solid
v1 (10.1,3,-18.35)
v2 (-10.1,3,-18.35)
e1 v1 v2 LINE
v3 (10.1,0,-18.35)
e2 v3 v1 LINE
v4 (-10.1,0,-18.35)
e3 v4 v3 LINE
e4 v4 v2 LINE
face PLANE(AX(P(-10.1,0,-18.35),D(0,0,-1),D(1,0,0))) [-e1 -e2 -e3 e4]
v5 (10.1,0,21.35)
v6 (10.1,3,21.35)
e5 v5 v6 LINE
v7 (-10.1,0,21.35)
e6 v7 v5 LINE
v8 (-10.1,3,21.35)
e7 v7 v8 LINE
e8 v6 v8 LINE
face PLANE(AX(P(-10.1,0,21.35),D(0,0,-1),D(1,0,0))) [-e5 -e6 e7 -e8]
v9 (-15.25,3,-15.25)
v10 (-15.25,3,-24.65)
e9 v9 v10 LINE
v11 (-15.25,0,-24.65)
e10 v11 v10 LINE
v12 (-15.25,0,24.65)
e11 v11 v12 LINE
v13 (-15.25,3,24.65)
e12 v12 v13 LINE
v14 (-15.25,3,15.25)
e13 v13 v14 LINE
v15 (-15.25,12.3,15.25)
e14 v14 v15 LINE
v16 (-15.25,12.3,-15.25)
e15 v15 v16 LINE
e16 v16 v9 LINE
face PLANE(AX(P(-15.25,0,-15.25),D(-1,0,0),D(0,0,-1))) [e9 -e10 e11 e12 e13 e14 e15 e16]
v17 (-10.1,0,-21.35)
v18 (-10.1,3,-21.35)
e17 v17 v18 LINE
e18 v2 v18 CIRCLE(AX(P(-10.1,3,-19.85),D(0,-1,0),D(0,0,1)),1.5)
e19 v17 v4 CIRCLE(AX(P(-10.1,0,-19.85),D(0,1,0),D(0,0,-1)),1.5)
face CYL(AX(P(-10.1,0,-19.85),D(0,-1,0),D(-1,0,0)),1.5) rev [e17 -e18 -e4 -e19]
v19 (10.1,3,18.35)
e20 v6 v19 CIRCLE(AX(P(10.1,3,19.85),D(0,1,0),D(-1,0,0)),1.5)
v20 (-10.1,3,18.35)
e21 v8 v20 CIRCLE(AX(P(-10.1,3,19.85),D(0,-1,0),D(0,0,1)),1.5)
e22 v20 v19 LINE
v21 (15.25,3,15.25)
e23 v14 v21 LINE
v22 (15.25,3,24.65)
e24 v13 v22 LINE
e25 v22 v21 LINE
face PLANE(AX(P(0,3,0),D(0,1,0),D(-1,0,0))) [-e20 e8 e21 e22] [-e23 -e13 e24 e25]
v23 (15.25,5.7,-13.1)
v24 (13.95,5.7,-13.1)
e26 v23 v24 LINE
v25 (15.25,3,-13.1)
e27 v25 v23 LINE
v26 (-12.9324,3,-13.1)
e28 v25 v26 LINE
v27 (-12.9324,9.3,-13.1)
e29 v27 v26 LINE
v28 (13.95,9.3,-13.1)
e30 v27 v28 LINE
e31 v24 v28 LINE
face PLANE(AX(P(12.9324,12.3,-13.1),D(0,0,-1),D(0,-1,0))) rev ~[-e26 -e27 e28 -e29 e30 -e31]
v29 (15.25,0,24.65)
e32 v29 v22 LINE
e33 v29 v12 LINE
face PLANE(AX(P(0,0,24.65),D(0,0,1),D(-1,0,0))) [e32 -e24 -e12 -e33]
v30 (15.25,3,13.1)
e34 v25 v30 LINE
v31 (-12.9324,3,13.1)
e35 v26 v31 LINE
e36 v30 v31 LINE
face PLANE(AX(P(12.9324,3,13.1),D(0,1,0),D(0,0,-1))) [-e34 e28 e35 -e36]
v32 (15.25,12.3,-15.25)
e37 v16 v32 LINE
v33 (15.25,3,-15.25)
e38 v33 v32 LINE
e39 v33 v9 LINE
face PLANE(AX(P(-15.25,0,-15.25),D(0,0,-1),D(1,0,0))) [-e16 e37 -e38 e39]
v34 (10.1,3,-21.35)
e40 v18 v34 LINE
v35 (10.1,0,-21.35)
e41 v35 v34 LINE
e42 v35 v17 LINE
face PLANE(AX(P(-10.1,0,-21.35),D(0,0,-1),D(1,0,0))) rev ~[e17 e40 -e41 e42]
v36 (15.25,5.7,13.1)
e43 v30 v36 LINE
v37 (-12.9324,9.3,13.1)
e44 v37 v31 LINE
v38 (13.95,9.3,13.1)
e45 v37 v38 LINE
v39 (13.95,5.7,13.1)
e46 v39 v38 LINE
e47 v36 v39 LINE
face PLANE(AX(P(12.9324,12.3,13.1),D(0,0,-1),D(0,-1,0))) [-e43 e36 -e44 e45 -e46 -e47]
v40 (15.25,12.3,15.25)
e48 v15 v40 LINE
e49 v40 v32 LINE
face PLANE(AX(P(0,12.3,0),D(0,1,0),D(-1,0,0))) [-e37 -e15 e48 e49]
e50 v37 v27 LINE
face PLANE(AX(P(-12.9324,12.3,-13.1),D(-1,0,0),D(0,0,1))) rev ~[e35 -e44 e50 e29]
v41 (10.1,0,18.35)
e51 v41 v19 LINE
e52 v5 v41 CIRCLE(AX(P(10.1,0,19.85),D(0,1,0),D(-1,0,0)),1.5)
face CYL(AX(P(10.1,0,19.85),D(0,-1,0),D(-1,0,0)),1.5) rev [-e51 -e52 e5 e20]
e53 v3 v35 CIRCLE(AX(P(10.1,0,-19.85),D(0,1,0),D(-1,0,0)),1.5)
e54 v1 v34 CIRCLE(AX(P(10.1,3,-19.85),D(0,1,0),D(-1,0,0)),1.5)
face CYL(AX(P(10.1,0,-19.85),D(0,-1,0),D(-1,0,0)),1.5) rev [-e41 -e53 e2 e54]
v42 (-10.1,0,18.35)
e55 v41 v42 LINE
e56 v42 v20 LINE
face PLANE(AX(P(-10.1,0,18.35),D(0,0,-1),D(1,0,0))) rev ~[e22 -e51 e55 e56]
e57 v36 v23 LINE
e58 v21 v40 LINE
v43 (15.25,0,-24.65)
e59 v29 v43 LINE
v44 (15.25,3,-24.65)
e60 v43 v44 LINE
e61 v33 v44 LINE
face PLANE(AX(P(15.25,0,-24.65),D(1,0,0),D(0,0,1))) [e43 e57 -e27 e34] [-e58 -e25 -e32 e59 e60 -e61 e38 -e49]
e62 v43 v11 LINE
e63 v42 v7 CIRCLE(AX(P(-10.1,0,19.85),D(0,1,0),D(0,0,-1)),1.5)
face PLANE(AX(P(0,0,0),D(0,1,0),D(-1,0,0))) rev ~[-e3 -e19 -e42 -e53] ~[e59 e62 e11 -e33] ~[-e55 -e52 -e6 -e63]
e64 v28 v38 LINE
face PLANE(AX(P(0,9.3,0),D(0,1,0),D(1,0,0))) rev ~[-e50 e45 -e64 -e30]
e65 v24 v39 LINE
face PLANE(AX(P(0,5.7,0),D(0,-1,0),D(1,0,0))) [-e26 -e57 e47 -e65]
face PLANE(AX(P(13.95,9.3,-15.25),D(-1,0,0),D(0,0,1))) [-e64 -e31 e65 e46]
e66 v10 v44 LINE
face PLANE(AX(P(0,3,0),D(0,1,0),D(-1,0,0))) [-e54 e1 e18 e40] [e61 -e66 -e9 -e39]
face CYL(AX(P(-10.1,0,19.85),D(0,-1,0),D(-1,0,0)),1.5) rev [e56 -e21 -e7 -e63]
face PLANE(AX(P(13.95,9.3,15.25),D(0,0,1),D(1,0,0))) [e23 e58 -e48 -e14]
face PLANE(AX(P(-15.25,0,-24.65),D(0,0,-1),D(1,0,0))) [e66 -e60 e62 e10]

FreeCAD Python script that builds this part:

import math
import FreeCAD as App
import Part
import Sketcher

V = App.Vector
Q = App.Units.Quantity

doc = App.newDocument("Part")
params = doc.addObject("Spreadsheet::Sheet", "Params")
for row, (alias, value) in enumerate([
    ("sketch1_radius", "1.5 mm"),
    ("sketch1_width", "30.5 mm"),
    ("sketch1_height", "49.3 mm"),
    ("sketch1_width2", "20.2 mm"),
    ("pad1_length", "3 mm"),
    ("sketch2_width", "30.5 mm"),
    ("pad2_length", "12.3 mm"),
    ("sketch3_height", "26.2 mm"),
    ("pocket1_length", "9.3 mm"),
    ("sketch4_width", "9.3 mm"),
    ("sketch4_height", "26.2 mm"),
    ("sketch5_width", "30.5 mm"),
    ("pad3_length", "3 mm"),
    ("sketch6_width", "1.3 mm"),
    ("sketch6_height", "30.5 mm"),
    ("pad4_length", "3.6 mm"),
], start=1):
    params.set(f"A{row}", alias)
    params.set(f"B{row}", "=" + value)
    params.setAlias(f"B{row}", alias)

body = doc.addObject("PartDesign::Body", "Body")

# Sketch on XZ plane
sketch1 = doc.addObject("Sketcher::SketchObject", "Sketch")
body.addObject(sketch1)
sketch1.AttachmentSupport = (doc.XZ_Plane, [""])
sketch1.MapMode = "FlatFace"
sketch1.addGeometry([
    Part.LineSegment(V(-15.2, -24.6, 0), V(-15.2, 24.6, 0)),  # 0
    Part.LineSegment(V(-15.2, 24.6, 0), V(15.2, 24.6, 0)),  # 1
    Part.LineSegment(V(15.2, 24.6, 0), V(15.2, -24.6, 0)),  # 2
    Part.LineSegment(V(15.2, -24.6, 0), V(-15.2, -24.6, 0)),  # 3
    Part.LineSegment(V(-10.1, -21.4, 0), V(10.1, -21.4, 0)),  # 4
    Part.ArcOfCircle(Part.Circle(V(10.1, -19.9, 0), V(0, 0, 1), 1.5), math.radians(-90), math.radians(90)),  # 5
    Part.LineSegment(V(10.1, -18.4, 0), V(-10.1, -18.4, 0)),  # 6
    Part.ArcOfCircle(Part.Circle(V(-10.1, -19.9, 0), V(0, 0, 1), 1.5), math.radians(90), math.radians(270)),  # 7
    Part.LineSegment(V(-10.1, 18.4, 0), V(10.1, 18.4, 0)),  # 8
    Part.ArcOfCircle(Part.Circle(V(10.1, 19.9, 0), V(0, 0, 1), 1.5), math.radians(-90), math.radians(90)),  # 9
    Part.LineSegment(V(10.1, 21.4, 0), V(-10.1, 21.4, 0)),  # 10
    Part.ArcOfCircle(Part.Circle(V(-10.1, 19.9, 0), V(0, 0, 1), 1.5), math.radians(90), math.radians(270)),  # 11
], False)
sketch1.addConstraint([
    Sketcher.Constraint("Coincident", 0, 2, 1, 1),
    Sketcher.Constraint("Coincident", 1, 2, 2, 1),
    Sketcher.Constraint("Coincident", 2, 2, 3, 1),
    Sketcher.Constraint("Coincident", 3, 2, 0, 1),
    Sketcher.Constraint("Tangent", 4, 2, 5, 1),
    Sketcher.Constraint("Tangent", 5, 2, 6, 1),
    Sketcher.Constraint("Tangent", 6, 2, 7, 1),
    Sketcher.Constraint("Tangent", 7, 2, 4, 1),
    Sketcher.Constraint("Tangent", 8, 2, 9, 1),
    Sketcher.Constraint("Tangent", 9, 2, 10, 1),
    Sketcher.Constraint("Tangent", 10, 2, 11, 1),
    Sketcher.Constraint("Tangent", 11, 2, 8, 1),
    Sketcher.Constraint("Vertical", 0),
    Sketcher.Constraint("Horizontal", 1),
    Sketcher.Constraint("Vertical", 2),
    Sketcher.Constraint("Horizontal", 3),
    Sketcher.Constraint("Horizontal", 4),
    Sketcher.Constraint("Horizontal", 6),
    Sketcher.Constraint("Horizontal", 8),
    Sketcher.Constraint("Horizontal", 10),
    Sketcher.Constraint("Equal", 7, 9),
    Sketcher.Constraint("Symmetric", 7, 3, 9, 3, -1, 1),
    Sketcher.Constraint("Symmetric", 0, 2, 2, 2, -1, 1),
    Sketcher.Constraint("Vertical", 5, 3, 9, 3),
    Sketcher.Constraint("Vertical", 7, 3, 11, 3),
    Sketcher.Constraint("Radius", 5, Q("1.5 mm")),
    Sketcher.Constraint("DistanceX", 1, 1, 1, 2, Q("30.5 mm")),
    Sketcher.Constraint("DistanceY", 0, 1, 0, 2, Q("49.3 mm")),
    Sketcher.Constraint("DistanceY", 2, 2, 4, 2, Q("3.3 mm")),
    Sketcher.Constraint("DistanceX", 4, 1, 4, 2, Q("20.2 mm")),
])
sketch1.setExpression("Constraints[25]", "Params.sketch1_radius")
sketch1.setExpression("Constraints[26]", "Params.sketch1_width")
sketch1.setExpression("Constraints[27]", "Params.sketch1_height")
sketch1.setExpression("Constraints[29]", "Params.sketch1_width2")
pad1 = doc.addObject("PartDesign::Pad", "Pad")
body.addObject(pad1)
pad1.Profile = sketch1
pad1.setExpression("Length", "Params.pad1_length")
pad1.Reversed = True

# Sketch on XZ plane
sketch2 = doc.addObject("Sketcher::SketchObject", "Sketch001")
body.addObject(sketch2)
sketch2.AttachmentSupport = (doc.XZ_Plane, [""])
sketch2.MapMode = "FlatFace"
sketch2.addGeometry([
    Part.LineSegment(V(-15, -15, 0), V(-15, 15, 0)),
    Part.LineSegment(V(-15, 15, 0), V(15, 15, 0)),
    Part.LineSegment(V(15, 15, 0), V(15, -15, 0)),
    Part.LineSegment(V(15, -15, 0), V(-15, -15, 0)),
], False)
sketch2.addConstraint([
    Sketcher.Constraint("Coincident", 0, 2, 1, 1),
    Sketcher.Constraint("Coincident", 1, 2, 2, 1),
    Sketcher.Constraint("Coincident", 2, 2, 3, 1),
    Sketcher.Constraint("Coincident", 3, 2, 0, 1),
    Sketcher.Constraint("Vertical", 0),
    Sketcher.Constraint("Horizontal", 1),
    Sketcher.Constraint("Vertical", 2),
    Sketcher.Constraint("Horizontal", 3),
    Sketcher.Constraint("Symmetric", 0, 2, 2, 2, -1, 1),
    Sketcher.Constraint("Equal", 3, 0),
    Sketcher.Constraint("DistanceX", 1, 1, 1, 2, Q("30.5 mm")),
])
sketch2.setExpression("Constraints[10]", "Params.sketch2_width")
pad2 = doc.addObject("PartDesign::Pad", "Pad001")
body.addObject(pad2)
pad2.Profile = sketch2
pad2.setExpression("Length", "Params.pad2_length")
pad2.Reversed = True

# Sketch on XZ plane
sketch3 = doc.addObject("Sketcher::SketchObject", "Sketch002")
body.addObject(sketch3)
sketch3.AttachmentSupport = (doc.XZ_Plane, [""])
sketch3.MapMode = "FlatFace"
sketch3.AttachmentOffset = App.Placement(V(0, 0, -12.3), App.Rotation())
sketch3.addGeometry([
    Part.LineSegment(V(13, 13, 0), V(13, -13, 0)),
    Part.LineSegment(V(13, -13, 0), V(-13, -13, 0)),
    Part.LineSegment(V(-13, -13, 0), V(-13, 13, 0)),
    Part.LineSegment(V(-13, 13, 0), V(13, 13, 0)),
], False)
sketch3.addConstraint([
    Sketcher.Constraint("Coincident", 0, 2, 1, 1),
    Sketcher.Constraint("Coincident", 1, 2, 2, 1),
    Sketcher.Constraint("Coincident", 2, 2, 3, 1),
    Sketcher.Constraint("Coincident", 3, 2, 0, 1),
    Sketcher.Constraint("Vertical", 0),
    Sketcher.Constraint("Horizontal", 1),
    Sketcher.Constraint("Vertical", 2),
    Sketcher.Constraint("Horizontal", 3),
    Sketcher.Constraint("Symmetric", 0, 2, 2, 2, -1, 1),
    Sketcher.Constraint("DistanceY", 0, 2, 0, 1, Q("26.2 mm")),
    Sketcher.Constraint("DistanceX", 1, 2, 1, 1, Q("25.8648 mm")),
])
sketch3.setExpression("Constraints[9]", "Params.sketch3_height")
pocket1 = doc.addObject("PartDesign::Pocket", "Pocket")
body.addObject(pocket1)
pocket1.Profile = sketch3
pocket1.setExpression("Length", "Params.pocket1_length")
pocket1.Reversed = True

# Sketch on YZ plane
sketch4 = doc.addObject("Sketcher::SketchObject", "Sketch003")
body.addObject(sketch4)
sketch4.AttachmentSupport = (doc.YZ_Plane, [""])
sketch4.MapMode = "FlatFace"
sketch4.AttachmentOffset = App.Placement(V(0, 0, 12.9324), App.Rotation())
sketch4.addGeometry([
    Part.LineSegment(V(3, 13, 0), V(12, 13, 0)),
    Part.LineSegment(V(12, 13, 0), V(12, -13, 0)),
    Part.LineSegment(V(12, -13, 0), V(3, -13, 0)),
    Part.LineSegment(V(3, -13, 0), V(3, 13, 0)),
], False)
sketch4.addConstraint([
    Sketcher.Constraint("Coincident", 0, 2, 1, 1),
    Sketcher.Constraint("Coincident", 1, 2, 2, 1),
    Sketcher.Constraint("Coincident", 2, 2, 3, 1),
    Sketcher.Constraint("Coincident", 3, 2, 0, 1),
    Sketcher.Constraint("Horizontal", 0),
    Sketcher.Constraint("Vertical", 1),
    Sketcher.Constraint("Horizontal", 2),
    Sketcher.Constraint("Vertical", 3),
    Sketcher.Constraint("DistanceX", 0, 1, 0, 2, Q("9.3 mm")),
    Sketcher.Constraint("DistanceY", 1, 2, 1, 1, Q("26.2 mm")),
    Sketcher.Constraint("DistanceX", -1, 1, 2, 2, Q("3 mm")),
    Sketcher.Constraint("DistanceY", -1, 1, 0, 2, Q("13.1 mm")),
])
sketch4.setExpression("Constraints[8]", "Params.sketch4_width")
sketch4.setExpression("Constraints[9]", "Params.sketch4_height")
pocket2 = doc.addObject("PartDesign::Pocket", "Pocket001")
body.addObject(pocket2)
pocket2.Profile = sketch4
pocket2.Type = "ThroughAll"
pocket2.Reversed = True

# Sketch on XZ plane
sketch5 = doc.addObject("Sketcher::SketchObject", "Sketch004")
body.addObject(sketch5)
sketch5.AttachmentSupport = (doc.XZ_Plane, [""])
sketch5.MapMode = "FlatFace"
sketch5.AttachmentOffset = App.Placement(V(0, 0, -12.3), App.Rotation())
sketch5.addGeometry([
    Part.LineSegment(V(15, -15, 0), V(-15, -15, 0)),
    Part.LineSegment(V(-15, -15, 0), V(-15, 15, 0)),
    Part.LineSegment(V(-15, 15, 0), V(15, 15, 0)),
    Part.LineSegment(V(15, 15, 0), V(15, -15, 0)),
], False)
sketch5.addConstraint([
    Sketcher.Constraint("Coincident", 0, 2, 1, 1),
    Sketcher.Constraint("Coincident", 1, 2, 2, 1),
    Sketcher.Constraint("Coincident", 2, 2, 3, 1),
    Sketcher.Constraint("Coincident", 3, 2, 0, 1),
    Sketcher.Constraint("Horizontal", 0),
    Sketcher.Constraint("Vertical", 1),
    Sketcher.Constraint("Horizontal", 2),
    Sketcher.Constraint("Vertical", 3),
    Sketcher.Constraint("Symmetric", 0, 2, 2, 2, -1, 1),
    Sketcher.Constraint("Equal", 2, 1),
    Sketcher.Constraint("DistanceX", 0, 2, 0, 1, Q("30.5 mm")),
])
sketch5.setExpression("Constraints[10]", "Params.sketch5_width")
pad3 = doc.addObject("PartDesign::Pad", "Pad002")
body.addObject(pad3)
pad3.Profile = sketch5
pad3.setExpression("Length", "Params.pad3_length")

# Sketch on XZ plane
sketch6 = doc.addObject("Sketcher::SketchObject", "Sketch005")
body.addObject(sketch6)
sketch6.AttachmentSupport = (doc.XZ_Plane, [""])
sketch6.MapMode = "FlatFace"
sketch6.AttachmentOffset = App.Placement(V(0, 0, -9.3), App.Rotation())
sketch6.addGeometry([
    Part.LineSegment(V(15.2, -15.2, 0), V(15.2, 15.2, 0)),
    Part.LineSegment(V(15.2, 15.2, 0), V(13.9, 15.2, 0)),
    Part.LineSegment(V(13.9, 15.2, 0), V(13.9, -15.2, 0)),
    Part.LineSegment(V(13.9, -15.2, 0), V(15.2, -15.2, 0)),
], False)
sketch6.addConstraint([
    Sketcher.Constraint("Coincident", 0, 2, 1, 1),
    Sketcher.Constraint("Coincident", 1, 2, 2, 1),
    Sketcher.Constraint("Coincident", 2, 2, 3, 1),
    Sketcher.Constraint("Coincident", 3, 2, 0, 1),
    Sketcher.Constraint("Vertical", 0),
    Sketcher.Constraint("Horizontal", 1),
    Sketcher.Constraint("Vertical", 2),
    Sketcher.Constraint("Horizontal", 3),
    Sketcher.Constraint("DistanceX", 1, 2, 1, 1, Q("1.3 mm")),
    Sketcher.Constraint("DistanceY", 0, 1, 0, 2, Q("30.5 mm")),
    Sketcher.Constraint("DistanceX", -1, 1, 0, 2, Q("15.25 mm")),
    Sketcher.Constraint("DistanceY", -1, 1, 0, 2, Q("15.25 mm")),
])
sketch6.setExpression("Constraints[8]", "Params.sketch6_width")
sketch6.setExpression("Constraints[9]", "Params.sketch6_height")
pad4 = doc.addObject("PartDesign::Pad", "Pad003")
body.addObject(pad4)
pad4.Profile = sketch6
pad4.setExpression("Length", "Params.pad4_length")

doc.recompute()
